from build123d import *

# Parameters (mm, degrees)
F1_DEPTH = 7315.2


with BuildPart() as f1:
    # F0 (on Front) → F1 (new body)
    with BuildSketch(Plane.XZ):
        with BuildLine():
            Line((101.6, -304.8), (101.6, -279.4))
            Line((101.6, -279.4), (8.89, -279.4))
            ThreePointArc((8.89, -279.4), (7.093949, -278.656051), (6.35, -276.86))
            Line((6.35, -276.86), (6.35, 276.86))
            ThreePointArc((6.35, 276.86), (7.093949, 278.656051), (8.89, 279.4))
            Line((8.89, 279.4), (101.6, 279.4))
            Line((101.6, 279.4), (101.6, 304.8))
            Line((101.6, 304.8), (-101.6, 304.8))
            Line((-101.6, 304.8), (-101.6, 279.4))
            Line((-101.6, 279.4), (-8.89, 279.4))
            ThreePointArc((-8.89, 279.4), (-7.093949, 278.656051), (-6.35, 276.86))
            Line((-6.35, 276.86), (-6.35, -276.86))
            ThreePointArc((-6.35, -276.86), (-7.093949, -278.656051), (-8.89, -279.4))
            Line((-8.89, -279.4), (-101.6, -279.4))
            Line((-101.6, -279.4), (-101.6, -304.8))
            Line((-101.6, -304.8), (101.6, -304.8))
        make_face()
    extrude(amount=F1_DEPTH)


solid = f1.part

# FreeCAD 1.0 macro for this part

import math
import FreeCAD as App
import Part
import Sketcher
from FreeCAD import Vector
Q = App.Units.Quantity

doc = App.newDocument("Part")
params = doc.addObject("Spreadsheet::Sheet", "Params")
for row, (alias, value) in enumerate([
    ("sketch1_radius", "0.1 in"),
    ("sketch1_width", "8 in"),
    ("sketch1_height", "1 in"),
    ("sketch1_height2", "21.8 in"),
    ("sketch1_width2", "3.65 in"),
    ("pad1_length", "288 in"),
], start=1):
    params.set(f"A{row}", alias)
    params.set(f"B{row}", "=" + value)
    params.setAlias(f"B{row}", alias)

body = doc.addObject("PartDesign::Body", "Body")

sketch1 = body.newObject("Sketcher::SketchObject", "Sketch")
sketch1.AttachmentSupport = (doc.getObject("XZ_Plane"), [""])
sketch1.MapMode = "FlatFace"
sketch1.addGeometry([
    Part.LineSegment(Vector(101.6, -304.8, 0), Vector(101.6, -279.4, 0)),
    Part.LineSegment(Vector(101.6, -279.4, 0), Vector(8.9, -279.4, 0)),
    Part.ArcOfCircle(Part.Circle(Vector(8.9, -276.9, 0), Vector(0, 0, 1), 2.5), math.radians(-180), math.radians(-90)),
    Part.LineSegment(Vector(6.3, -276.9, 0), Vector(6.3, 276.9, 0)),
    Part.ArcOfCircle(Part.Circle(Vector(8.9, 276.9, 0), Vector(0, 0, 1), 2.5), math.radians(90), math.radians(180)),
    Part.LineSegment(Vector(8.9, 279.4, 0), Vector(101.6, 279.4, 0)),
    Part.LineSegment(Vector(101.6, 279.4, 0), Vector(101.6, 304.8, 0)),
    Part.LineSegment(Vector(101.6, 304.8, 0), Vector(-101.6, 304.8, 0)),
    Part.LineSegment(Vector(-101.6, 304.8, 0), Vector(-101.6, 279.4, 0)),
    Part.LineSegment(Vector(-101.6, 279.4, 0), Vector(-8.9, 279.4, 0)),
    Part.ArcOfCircle(Part.Circle(Vector(-8.9, 276.9, 0), Vector(0, 0, 1), 2.5), math.radians(0), math.radians(90)),
    Part.LineSegment(Vector(-6.3, 276.9, 0), Vector(-6.3, -276.9, 0)),
    Part.ArcOfCircle(Part.Circle(Vector(-8.9, -276.9, 0), Vector(0, 0, 1), 2.5), math.radians(-90), math.radians(0)),
    Part.LineSegment(Vector(-8.9, -279.4, 0), Vector(-101.6, -279.4, 0)),
    Part.LineSegment(Vector(-101.6, -279.4, 0), Vector(-101.6, -304.8, 0)),
    Part.LineSegment(Vector(-101.6, -304.8, 0), Vector(101.6, -304.8, 0)),
], False)
sketch1.addConstraint([
    Sketcher.Constraint("Coincident", 0, 2, 1, 1),
    Sketcher.Constraint("Tangent", 1, 2, 2, 2),
    Sketcher.Constraint("Tangent", 2, 1, 3, 1),
    Sketcher.Constraint("Tangent", 3, 2, 4, 2),
    Sketcher.Constraint("Tangent", 4, 1, 5, 1),
    Sketcher.Constraint("Coincident", 5, 2, 6, 1),
    Sketcher.Constraint("Coincident", 6, 2, 7, 1),
    Sketcher.Constraint("Coincident", 7, 2, 8, 1),
    Sketcher.Constraint("Coincident", 8, 2, 9, 1),
    Sketcher.Constraint("Tangent", 9, 2, 10, 2),
    Sketcher.Constraint("Tangent", 10, 1, 11, 1),
    Sketcher.Constraint("Tangent", 11, 2, 12, 2),
    Sketcher.Constraint("Tangent", 12, 1, 13, 1),
    Sketcher.Constraint("Coincident", 13, 2, 14, 1),
    Sketcher.Constraint("Coincident", 14, 2, 15, 1),
    Sketcher.Constraint("Coincident", 15, 2, 0, 1),
    Sketcher.Constraint("Vertical", 0),
    Sketcher.Constraint("Horizontal", 1),
    Sketcher.Constraint("Vertical", 3),
    Sketcher.Constraint("Horizontal", 5),
    Sketcher.Constraint("Vertical", 6),
    Sketcher.Constraint("Horizontal", 7),
    Sketcher.Constraint("Vertical", 8),
    Sketcher.Constraint("Horizontal", 9),
    Sketcher.Constraint("Vertical", 11),
    Sketcher.Constraint("Horizontal", 13),
    Sketcher.Constraint("Vertical", 14),
    Sketcher.Constraint("Horizontal", 15),
    Sketcher.Constraint("Equal", 2, 4),
    Sketcher.Constraint("Equal", 4, 10),
    Sketcher.Constraint("Equal", 10, 12),
    Sketcher.Constraint("Symmetric", 2, 3, 10, 3, -1, 1),
    Sketcher.Constraint("Symmetric", 5, 2, 13, 2, -1, 1),
    Sketcher.Constraint("Symmetric", 7, 2, 15, 2, -1, 1),
    Sketcher.Constraint("Symmetric", 5, 2, 8, 2, -2),
    Sketcher.Constraint("Radius", 2, Q("0.1 in")),
    Sketcher.Constraint("DistanceX", 7, 2, 7, 1, Q("8 in")),
    Sketcher.Constraint("DistanceY", 0, 1, 0, 2, Q("1 in")),
    Sketcher.Constraint("DistanceY", 3, 1, 3, 2, Q("21.8 in")),
    Sketcher.Constraint("DistanceX", 1, 2, 1, 1, Q("3.65 in")),
])
sketch1.setExpression("Constraints[35]", "Params.sketch1_radius")
sketch1.setExpression("Constraints[36]", "Params.sketch1_width")
sketch1.setExpression("Constraints[37]", "Params.sketch1_height")
sketch1.setExpression("Constraints[38]", "Params.sketch1_height2")
sketch1.setExpression("Constraints[39]", "Params.sketch1_width2")
pad1 = body.newObject("PartDesign::Pad", "Pad")
pad1.Profile = sketch1
pad1.setExpression("Length", "Params.pad1_length")

doc.recompute()
